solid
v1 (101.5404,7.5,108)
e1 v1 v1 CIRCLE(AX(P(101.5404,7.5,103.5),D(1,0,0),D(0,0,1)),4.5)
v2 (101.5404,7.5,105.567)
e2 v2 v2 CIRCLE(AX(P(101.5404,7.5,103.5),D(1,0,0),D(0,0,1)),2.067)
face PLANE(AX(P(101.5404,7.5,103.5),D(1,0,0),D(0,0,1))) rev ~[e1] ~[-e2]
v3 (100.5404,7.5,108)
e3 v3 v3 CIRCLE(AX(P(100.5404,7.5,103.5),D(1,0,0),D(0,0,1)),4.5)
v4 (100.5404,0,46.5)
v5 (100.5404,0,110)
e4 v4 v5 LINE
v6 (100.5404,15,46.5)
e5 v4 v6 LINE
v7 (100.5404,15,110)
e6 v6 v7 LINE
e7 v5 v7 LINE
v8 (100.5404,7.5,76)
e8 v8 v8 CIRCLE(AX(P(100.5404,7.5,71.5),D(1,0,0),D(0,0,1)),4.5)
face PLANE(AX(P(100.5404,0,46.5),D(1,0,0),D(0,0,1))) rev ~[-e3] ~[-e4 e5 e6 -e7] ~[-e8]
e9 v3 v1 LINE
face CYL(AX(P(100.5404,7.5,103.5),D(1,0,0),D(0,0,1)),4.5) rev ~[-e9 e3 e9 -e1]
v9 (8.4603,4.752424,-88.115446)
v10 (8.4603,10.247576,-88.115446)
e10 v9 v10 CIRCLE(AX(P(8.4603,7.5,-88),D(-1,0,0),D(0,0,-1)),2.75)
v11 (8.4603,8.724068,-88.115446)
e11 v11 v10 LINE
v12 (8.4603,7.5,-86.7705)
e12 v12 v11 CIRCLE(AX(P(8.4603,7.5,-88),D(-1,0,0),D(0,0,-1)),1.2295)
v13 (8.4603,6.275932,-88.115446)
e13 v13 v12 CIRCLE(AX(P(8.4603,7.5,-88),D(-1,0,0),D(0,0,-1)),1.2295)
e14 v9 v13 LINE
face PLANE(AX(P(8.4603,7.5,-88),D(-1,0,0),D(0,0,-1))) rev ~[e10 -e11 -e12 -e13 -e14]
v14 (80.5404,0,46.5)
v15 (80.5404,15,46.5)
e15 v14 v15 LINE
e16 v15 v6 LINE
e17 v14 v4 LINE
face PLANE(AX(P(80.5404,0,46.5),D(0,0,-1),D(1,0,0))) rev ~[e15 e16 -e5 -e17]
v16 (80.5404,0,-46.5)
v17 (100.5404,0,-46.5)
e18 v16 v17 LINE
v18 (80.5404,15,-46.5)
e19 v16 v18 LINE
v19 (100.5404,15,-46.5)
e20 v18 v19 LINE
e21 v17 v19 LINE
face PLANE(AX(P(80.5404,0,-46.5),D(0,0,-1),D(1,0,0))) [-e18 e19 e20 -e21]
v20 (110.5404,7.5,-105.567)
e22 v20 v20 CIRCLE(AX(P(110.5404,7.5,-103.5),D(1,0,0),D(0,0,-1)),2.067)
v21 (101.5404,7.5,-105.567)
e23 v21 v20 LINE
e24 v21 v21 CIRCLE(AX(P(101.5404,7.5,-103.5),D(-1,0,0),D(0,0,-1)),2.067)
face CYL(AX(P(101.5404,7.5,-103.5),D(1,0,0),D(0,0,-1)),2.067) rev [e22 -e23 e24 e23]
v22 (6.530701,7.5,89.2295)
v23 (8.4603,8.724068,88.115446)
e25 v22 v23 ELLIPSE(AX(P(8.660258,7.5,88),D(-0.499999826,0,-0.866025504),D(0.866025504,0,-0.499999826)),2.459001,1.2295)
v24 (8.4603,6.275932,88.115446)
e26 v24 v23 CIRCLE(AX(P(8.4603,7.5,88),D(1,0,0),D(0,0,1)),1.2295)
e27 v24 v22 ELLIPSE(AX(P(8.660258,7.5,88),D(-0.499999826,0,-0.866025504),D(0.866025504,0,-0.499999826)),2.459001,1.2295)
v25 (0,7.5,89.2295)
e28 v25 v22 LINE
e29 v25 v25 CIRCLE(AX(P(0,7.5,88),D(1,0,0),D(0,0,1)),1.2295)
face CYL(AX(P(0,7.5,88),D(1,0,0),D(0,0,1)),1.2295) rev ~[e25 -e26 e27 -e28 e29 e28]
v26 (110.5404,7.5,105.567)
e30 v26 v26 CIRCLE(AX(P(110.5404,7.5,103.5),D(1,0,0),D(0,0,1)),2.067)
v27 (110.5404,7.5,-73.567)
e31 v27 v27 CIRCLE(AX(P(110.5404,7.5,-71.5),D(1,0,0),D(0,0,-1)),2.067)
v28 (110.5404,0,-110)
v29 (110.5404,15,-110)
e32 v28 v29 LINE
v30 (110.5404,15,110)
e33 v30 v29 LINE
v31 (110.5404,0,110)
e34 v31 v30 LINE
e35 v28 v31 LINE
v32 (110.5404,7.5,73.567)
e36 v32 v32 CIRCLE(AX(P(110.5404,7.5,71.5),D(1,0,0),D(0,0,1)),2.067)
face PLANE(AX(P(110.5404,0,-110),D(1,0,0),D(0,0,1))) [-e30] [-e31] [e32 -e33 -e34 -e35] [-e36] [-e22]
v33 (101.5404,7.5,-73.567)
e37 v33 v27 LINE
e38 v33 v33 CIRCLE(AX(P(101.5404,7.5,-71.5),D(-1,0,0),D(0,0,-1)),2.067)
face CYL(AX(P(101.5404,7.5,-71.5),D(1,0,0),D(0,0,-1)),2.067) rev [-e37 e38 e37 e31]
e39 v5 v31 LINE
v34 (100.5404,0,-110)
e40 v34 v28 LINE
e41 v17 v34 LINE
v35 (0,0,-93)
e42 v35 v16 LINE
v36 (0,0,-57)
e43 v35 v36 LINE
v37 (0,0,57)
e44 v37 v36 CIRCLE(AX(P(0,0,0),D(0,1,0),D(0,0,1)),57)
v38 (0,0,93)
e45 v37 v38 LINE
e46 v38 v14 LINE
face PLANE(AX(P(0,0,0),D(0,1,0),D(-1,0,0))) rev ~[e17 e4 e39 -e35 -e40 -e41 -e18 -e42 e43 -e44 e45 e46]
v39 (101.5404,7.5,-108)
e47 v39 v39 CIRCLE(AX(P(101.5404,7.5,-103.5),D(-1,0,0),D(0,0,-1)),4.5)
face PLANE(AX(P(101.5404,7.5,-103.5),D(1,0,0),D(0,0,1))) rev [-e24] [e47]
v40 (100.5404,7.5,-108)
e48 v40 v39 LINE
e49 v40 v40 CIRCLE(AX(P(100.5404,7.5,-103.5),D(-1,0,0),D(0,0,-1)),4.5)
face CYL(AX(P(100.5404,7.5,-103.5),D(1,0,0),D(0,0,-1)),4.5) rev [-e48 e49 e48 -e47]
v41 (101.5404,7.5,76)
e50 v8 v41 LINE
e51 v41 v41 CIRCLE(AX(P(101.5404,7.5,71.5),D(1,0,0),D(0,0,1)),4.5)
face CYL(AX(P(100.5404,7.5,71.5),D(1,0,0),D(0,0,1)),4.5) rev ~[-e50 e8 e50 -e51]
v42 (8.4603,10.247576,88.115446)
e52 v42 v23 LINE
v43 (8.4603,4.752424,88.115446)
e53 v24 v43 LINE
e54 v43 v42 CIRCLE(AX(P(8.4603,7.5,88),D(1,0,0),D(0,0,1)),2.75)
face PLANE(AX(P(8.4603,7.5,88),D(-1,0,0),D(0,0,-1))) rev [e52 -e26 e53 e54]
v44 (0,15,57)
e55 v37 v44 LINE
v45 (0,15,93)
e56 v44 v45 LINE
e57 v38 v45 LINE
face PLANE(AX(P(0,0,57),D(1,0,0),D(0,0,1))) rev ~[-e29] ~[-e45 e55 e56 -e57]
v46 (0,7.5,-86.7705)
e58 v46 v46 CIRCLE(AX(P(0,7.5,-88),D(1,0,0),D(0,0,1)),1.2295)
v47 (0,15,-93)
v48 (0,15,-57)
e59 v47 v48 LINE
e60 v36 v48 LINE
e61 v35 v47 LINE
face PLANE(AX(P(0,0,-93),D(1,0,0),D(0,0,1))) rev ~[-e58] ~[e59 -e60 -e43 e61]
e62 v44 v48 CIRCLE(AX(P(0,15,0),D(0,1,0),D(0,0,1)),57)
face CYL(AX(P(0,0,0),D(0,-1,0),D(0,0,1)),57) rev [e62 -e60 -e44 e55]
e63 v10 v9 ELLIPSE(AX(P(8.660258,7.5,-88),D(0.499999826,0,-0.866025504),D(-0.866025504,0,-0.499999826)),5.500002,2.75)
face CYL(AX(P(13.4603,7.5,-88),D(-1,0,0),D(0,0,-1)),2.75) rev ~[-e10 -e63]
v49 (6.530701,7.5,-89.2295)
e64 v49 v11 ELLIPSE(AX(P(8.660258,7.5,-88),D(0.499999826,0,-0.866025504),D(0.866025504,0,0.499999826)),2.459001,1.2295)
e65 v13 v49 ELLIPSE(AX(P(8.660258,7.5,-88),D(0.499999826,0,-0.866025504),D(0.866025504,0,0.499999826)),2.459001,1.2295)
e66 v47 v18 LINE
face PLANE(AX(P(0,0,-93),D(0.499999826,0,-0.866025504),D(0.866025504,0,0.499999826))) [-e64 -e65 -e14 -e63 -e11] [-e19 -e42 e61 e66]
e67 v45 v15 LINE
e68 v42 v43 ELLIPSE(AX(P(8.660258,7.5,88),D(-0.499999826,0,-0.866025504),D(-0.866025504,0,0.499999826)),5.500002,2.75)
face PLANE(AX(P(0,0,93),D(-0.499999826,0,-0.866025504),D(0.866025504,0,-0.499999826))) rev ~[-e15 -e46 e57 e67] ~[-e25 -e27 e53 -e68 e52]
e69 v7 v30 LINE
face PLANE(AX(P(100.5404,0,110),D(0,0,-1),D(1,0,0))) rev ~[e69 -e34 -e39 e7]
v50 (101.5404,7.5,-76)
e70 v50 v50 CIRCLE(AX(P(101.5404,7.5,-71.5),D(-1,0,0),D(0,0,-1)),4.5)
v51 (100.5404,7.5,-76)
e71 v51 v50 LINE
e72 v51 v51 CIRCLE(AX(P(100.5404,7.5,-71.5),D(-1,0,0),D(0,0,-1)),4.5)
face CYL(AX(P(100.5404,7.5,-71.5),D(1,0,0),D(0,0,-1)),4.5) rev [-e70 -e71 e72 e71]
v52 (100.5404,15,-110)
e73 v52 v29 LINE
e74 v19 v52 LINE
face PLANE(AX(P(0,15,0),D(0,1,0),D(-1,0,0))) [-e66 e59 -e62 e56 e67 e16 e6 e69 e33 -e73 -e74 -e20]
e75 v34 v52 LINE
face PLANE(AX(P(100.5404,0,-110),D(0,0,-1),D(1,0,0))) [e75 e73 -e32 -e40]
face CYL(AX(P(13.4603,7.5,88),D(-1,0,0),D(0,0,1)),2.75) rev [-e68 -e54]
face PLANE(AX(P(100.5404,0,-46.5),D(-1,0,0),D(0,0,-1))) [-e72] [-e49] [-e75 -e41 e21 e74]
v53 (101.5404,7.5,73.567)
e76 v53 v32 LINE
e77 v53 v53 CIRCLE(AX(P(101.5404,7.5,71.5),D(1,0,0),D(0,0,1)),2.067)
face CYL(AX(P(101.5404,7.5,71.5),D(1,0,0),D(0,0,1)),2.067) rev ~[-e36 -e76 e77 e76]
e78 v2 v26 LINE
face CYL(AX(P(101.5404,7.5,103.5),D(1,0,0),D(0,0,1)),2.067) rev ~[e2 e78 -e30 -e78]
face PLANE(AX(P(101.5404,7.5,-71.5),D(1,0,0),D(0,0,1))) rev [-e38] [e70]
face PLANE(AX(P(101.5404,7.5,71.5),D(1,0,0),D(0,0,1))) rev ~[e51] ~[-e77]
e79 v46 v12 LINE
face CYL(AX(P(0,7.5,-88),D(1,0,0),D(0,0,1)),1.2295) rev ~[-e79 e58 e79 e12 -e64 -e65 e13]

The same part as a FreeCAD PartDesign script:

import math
import FreeCAD as App
import Part
import Sketcher
from FreeCAD import Vector
Q = App.Units.Quantity

doc = App.newDocument("Part")
body = doc.addObject("PartDesign::Body", "Body")

# Sketch on XZ plane
sketch1 = body.newObject("Sketcher::SketchObject", "Sketch")
sketch1.AttachmentSupport = (doc.getObject("XZ_Plane"), [""])
sketch1.MapMode = "FlatFace"
sketch1.addGeometry([
    Part.ArcOfCircle(Part.Circle(Vector(0, 0, 0), Vector(0, 0, 1), 57), math.radians(-90), math.radians(90)),  # 0
    Part.LineSegment(Vector(0, 57, 0), Vector(0, 93, 0)),  # 1
    Part.LineSegment(Vector(0, 93, 0), Vector(81, 46, 0)),  # 2
    Part.LineSegment(Vector(81, 46, 0), Vector(101, 46, 0)),  # 3
    Part.LineSegment(Vector(101, 46, 0), Vector(101, 110, 0)),  # 4
    Part.LineSegment(Vector(101, 110, 0), Vector(111, 110, 0)),  # 5
    Part.LineSegment(Vector(111, 110, 0), Vector(111, -110, 0)),  # 6
    Part.LineSegment(Vector(111, -110, 0), Vector(101, -110, 0)),  # 7
    Part.LineSegment(Vector(101, -110, 0), Vector(101, -46, 0)),  # 8
    Part.LineSegment(Vector(101, -46, 0), Vector(81, -46, 0)),  # 9
    Part.LineSegment(Vector(81, -46, 0), Vector(0, -93, 0)),  # 10
    Part.LineSegment(Vector(0, -93, 0), Vector(0, -57, 0)),  # 11
], False)
sketch1.addConstraint([
    Sketcher.Constraint("Coincident", 0, 2, 1, 1),
    Sketcher.Constraint("Coincident", 1, 2, 2, 1),
    Sketcher.Constraint("Coincident", 2, 2, 3, 1),
    Sketcher.Constraint("Coincident", 3, 2, 4, 1),
    Sketcher.Constraint("Coincident", 4, 2, 5, 1),
    Sketcher.Constraint("Coincident", 5, 2, 6, 1),
    Sketcher.Constraint("Coincident", 6, 2, 7, 1),
    Sketcher.Constraint("Coincident", 7, 2, 8, 1),
    Sketcher.Constraint("Coincident", 8, 2, 9, 1),
    Sketcher.Constraint("Coincident", 9, 2, 10, 1),
    Sketcher.Constraint("Coincident", 10, 2, 11, 1),
    Sketcher.Constraint("Coincident", 11, 2, 0, 1),
    Sketcher.Constraint("Vertical", 1),
    Sketcher.Constraint("Horizontal", 3),
    Sketcher.Constraint("Vertical", 4),
    Sketcher.Constraint("Horizontal", 5),
    Sketcher.Constraint("Vertical", 6),
    Sketcher.Constraint("Horizontal", 7),
    Sketcher.Constraint("Vertical", 8),
    Sketcher.Constraint("Horizontal", 9),
    Sketcher.Constraint("Vertical", 11),
    Sketcher.Constraint("Coincident", 0, 3, -1, 1),
    Sketcher.Constraint("Symmetric", 1, 2, 10, 2, -1, 1),
    Sketcher.Constraint("Symmetric", 4, 2, 7, 2, -1),
    Sketcher.Constraint("Symmetric", 2, 2, 9, 2, -1),
    Sketcher.Constraint("PointOnObject", 0, 2, -2),
    Sketcher.Constraint("Radius", 0, 57.0),
    Sketcher.Constraint("DistanceX", 5, 1, 5, 2, 10.0),
    Sketcher.Constraint("DistanceX", 3, 1, 3, 2, 20.0),
    Sketcher.Constraint("DistanceY", 1, 1, 1, 2, 36.0),
    Sketcher.Constraint("DistanceY", 6, 2, 6, 1, 220.0),
    Sketcher.Constraint("Angle", 2, Q("-30 deg")),
    Sketcher.Constraint("Distance", 2, 93.0),
])
pad1 = body.newObject("PartDesign::Pad", "Pad")
pad1.Profile = sketch1
pad1.Length = 15
pad1.Reversed = True

# Sketch on YZ plane
sketch2 = body.newObject("Sketcher::SketchObject", "Sketch001")
sketch2.AttachmentSupport = (doc.getObject("YZ_Plane"), [""])
sketch2.MapMode = "FlatFace"
sketch2.addGeometry(Part.Circle(Vector(7.5, 88, 0), Vector(0, 0, 1), 1.2), False)
sketch2.addConstraint([
    Sketcher.Constraint("Diameter", 0, 2.459),
    Sketcher.Constraint("DistanceY", -1, 1, 0, 3, 88.0),
    Sketcher.Constraint("DistanceX", -1, 1, 0, 3, 7.5),
])
doc.recompute()
hole = body.newObject("PartDesign::Hole", "Hole")
hole.Profile = sketch2
hole.ThreadType = "None"
hole.Diameter = 2.459
hole.DepthType = "Dimension"
hole.Depth = 31.54
hole.DrillPoint = "Angled"
hole.DrillPointAngle = 118
hole.Reversed = True

# Sketch on YZ plane
sketch3 = body.newObject("Sketcher::SketchObject", "Sketch002")
sketch3.AttachmentSupport = (doc.getObject("YZ_Plane"), [""])
sketch3.MapMode = "FlatFace"
sketch3.addGeometry(Part.Circle(Vector(7.5, -88, 0), Vector(0, 0, 1), 1.2), False)
sketch3.addConstraint([
    Sketcher.Constraint("Diameter", 0, 2.459),
    Sketcher.Constraint("DistanceY", 0, 3, -1, 1, 88.0),
    Sketcher.Constraint("DistanceX", -1, 1, 0, 3, 7.5),
])
doc.recompute()
hole2 = body.newObject("PartDesign::Hole", "Hole001")
hole2.Profile = sketch3
hole2.ThreadType = "None"
hole2.Diameter = 2.459
hole2.DepthType = "Dimension"
hole2.Depth = 35.79
hole2.DrillPoint = "Angled"
hole2.DrillPointAngle = 118
hole2.Reversed = True

# Sketch on YZ plane
sketch4 = body.newObject("Sketcher::SketchObject", "Sketch003")
sketch4.AttachmentSupport = (doc.getObject("YZ_Plane"), [""])
sketch4.MapMode = "FlatFace"
sketch4.AttachmentOffset = App.Placement(Vector(0, 0, 13.4603), App.Rotation())
sketch4.addGeometry(Part.Circle(Vector(7.5, -88, 0), Vector(0, 0, 1), 1.2), False)
sketch4.addConstraint([
    Sketcher.Constraint("Diameter", 0, 2.459),
    Sketcher.Constraint("DistanceY", 0, 3, -1, 1, 88.0),
    Sketcher.Constraint("DistanceX", -1, 1, 0, 3, 7.5),
])
doc.recompute()
hole3 = body.newObject("PartDesign::Hole", "Hole002")
hole3.Profile = sketch4
hole3.ThreadType = "None"
hole3.Diameter = 2.459
hole3.DepthType = "ThroughAll"
hole3.HoleCutType = "Counterbore"
hole3.HoleCutDiameter = 5.5
hole3.HoleCutDepth = 5

# Sketch on YZ plane
sketch5 = body.newObject("Sketcher::SketchObject", "Sketch004")
sketch5.AttachmentSupport = (doc.getObject("YZ_Plane"), [""])
sketch5.MapMode = "FlatFace"
sketch5.AttachmentOffset = App.Placement(Vector(0, 0, 100.5404), App.Rotation())
sketch5.addGeometry([
    Part.Circle(Vector(7.5, 103.5, 0), Vector(0, 0, 1), 2.1),
    Part.Circle(Vector(7.5, 71.5, 0), Vector(0, 0, 1), 2.1),
], False)
sketch5.addConstraint([
    Sketcher.Constraint("Equal", 0, 1),
    Sketcher.Constraint("Vertical", 0, 3, 1, 3),
    Sketcher.Constraint("Diameter", 0, 4.134),
    Sketcher.Constraint("DistanceY", 1, 3, 0, 3, 32.0),
    Sketcher.Constraint("DistanceX", -1, 1, 0, 3, 7.5),
    Sketcher.Constraint("DistanceY", -1, 1, 0, 3, 103.5),
])
doc.recompute()
hole4 = body.newObject("PartDesign::Hole", "Hole003")
hole4.Profile = sketch5
hole4.ThreadType = "None"
hole4.Diameter = 4.134
hole4.DepthType = "ThroughAll"
hole4.HoleCutType = "Counterbore"
hole4.HoleCutDiameter = 9
hole4.HoleCutDepth = 1
hole4.Reversed = True
doc.recompute()

mirrored = body.newObject("PartDesign::Mirrored", "Mirrored")
mirrored.Originals = [hole4, hole3]
mirrored.MirrorPlane = (doc.getObject("XY_Plane"), [""])
body.Tip = mirrored

doc.recompute()
